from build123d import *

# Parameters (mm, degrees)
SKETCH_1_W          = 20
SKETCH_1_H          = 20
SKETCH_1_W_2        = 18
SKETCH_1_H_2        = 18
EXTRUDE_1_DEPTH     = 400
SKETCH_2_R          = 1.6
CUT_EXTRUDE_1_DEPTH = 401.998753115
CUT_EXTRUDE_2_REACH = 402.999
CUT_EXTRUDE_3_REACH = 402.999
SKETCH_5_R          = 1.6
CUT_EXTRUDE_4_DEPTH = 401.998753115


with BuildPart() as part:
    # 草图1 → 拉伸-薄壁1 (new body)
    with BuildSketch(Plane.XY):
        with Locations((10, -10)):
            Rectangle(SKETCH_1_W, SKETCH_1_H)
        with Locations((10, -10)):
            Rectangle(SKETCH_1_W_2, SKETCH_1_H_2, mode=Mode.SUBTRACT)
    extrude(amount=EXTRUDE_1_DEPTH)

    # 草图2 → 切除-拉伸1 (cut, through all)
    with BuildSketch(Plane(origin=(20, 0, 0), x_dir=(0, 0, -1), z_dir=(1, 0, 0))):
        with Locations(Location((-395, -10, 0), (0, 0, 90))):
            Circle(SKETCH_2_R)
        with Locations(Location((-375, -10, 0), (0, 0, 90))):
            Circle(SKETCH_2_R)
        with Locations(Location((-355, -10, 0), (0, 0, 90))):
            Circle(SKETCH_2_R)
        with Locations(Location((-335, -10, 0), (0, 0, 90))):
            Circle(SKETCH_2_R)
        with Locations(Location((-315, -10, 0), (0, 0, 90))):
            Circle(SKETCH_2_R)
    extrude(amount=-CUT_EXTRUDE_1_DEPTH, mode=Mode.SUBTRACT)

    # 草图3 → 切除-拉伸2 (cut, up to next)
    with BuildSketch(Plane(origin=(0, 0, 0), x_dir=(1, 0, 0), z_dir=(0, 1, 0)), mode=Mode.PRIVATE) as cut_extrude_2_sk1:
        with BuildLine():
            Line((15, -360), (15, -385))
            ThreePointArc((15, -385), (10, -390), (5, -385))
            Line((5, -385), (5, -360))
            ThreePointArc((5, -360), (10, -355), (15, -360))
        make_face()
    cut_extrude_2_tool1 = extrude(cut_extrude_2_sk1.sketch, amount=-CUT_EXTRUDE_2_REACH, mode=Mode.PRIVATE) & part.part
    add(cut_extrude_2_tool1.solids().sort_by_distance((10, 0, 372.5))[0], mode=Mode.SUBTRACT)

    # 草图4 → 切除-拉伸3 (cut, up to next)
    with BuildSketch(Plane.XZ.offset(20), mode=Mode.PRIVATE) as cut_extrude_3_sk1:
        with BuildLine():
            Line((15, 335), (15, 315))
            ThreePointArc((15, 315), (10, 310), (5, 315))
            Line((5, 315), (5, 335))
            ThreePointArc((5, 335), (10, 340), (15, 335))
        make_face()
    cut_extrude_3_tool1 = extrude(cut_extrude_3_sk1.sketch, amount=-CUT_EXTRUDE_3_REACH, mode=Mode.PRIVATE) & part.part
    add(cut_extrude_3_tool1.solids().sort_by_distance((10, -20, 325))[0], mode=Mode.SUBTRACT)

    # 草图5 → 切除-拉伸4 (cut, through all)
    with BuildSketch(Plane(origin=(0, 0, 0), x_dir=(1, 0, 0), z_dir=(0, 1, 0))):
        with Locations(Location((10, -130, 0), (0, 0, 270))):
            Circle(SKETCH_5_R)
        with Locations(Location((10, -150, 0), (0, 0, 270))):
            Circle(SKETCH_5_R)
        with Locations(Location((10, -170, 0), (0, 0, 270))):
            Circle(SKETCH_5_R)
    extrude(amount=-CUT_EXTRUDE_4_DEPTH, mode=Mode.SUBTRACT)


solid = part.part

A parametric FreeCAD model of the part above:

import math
import FreeCAD as App
import Part
import Sketcher


def add_polygon(sketch, points):
    """Adds a closed chain of lines whose ends are joined by coincident constraints."""
    first, n = sketch.GeometryCount, len(points)
    for a, b in zip(points, points[1:] + points[:1]):
        sketch.addGeometry(Part.LineSegment(App.Vector(*a, 0), App.Vector(*b, 0)), False)
    for i in range(n):
        sketch.addConstraint(Sketcher.Constraint("Coincident", first + i, 2, first + (i + 1) % n, 1))

doc = App.newDocument("Part")
params = doc.addObject("Spreadsheet::Sheet", "Params")
for row, (alias, value) in enumerate([
    ("sketch1_width", "20 mm"),
    ("sketch1_width2", "18 mm"),
    ("pad1_length", "400 mm"),
    ("sketch2_diameter", "3.2 mm"),
    ("sketch3_radius", "5 mm"),
    ("sketch3_height", "25 mm"),
    ("sketch4_radius", "5 mm"),
    ("sketch4_height", "20 mm"),
    ("sketch5_diameter", "3.2 mm"),
], start=1):
    params.set(f"A{row}", alias)
    params.set(f"B{row}", "=" + value)
    params.setAlias(f"B{row}", alias)

body = doc.addObject("PartDesign::Body", "Body")

# Sketch on XY plane
sketch1 = body.newObject("Sketcher::SketchObject", "Sketch")
sketch1.AttachmentSupport = (doc.getObject("XY_Plane"), [""])
sketch1.MapMode = "FlatFace"
add_polygon(sketch1, [(0, 0), (0, -20), (20, -20), (20, 0)])  # lines 0-3
add_polygon(sketch1, [(19, -19), (1, -19), (1, -1), (19, -1)])  # lines 4-7
sketch1.addConstraint([
    Sketcher.Constraint("Vertical", 0),
    Sketcher.Constraint("Horizontal", 1),
    Sketcher.Constraint("Vertical", 2),
    Sketcher.Constraint("Horizontal", 3),
    Sketcher.Constraint("Horizontal", 4),
    Sketcher.Constraint("Vertical", 5),
    Sketcher.Constraint("Horizontal", 6),
    Sketcher.Constraint("Vertical", 7),
    Sketcher.Constraint("Coincident", 3, 2, -1, 1),
    Sketcher.Constraint("Equal", 3, 0),
    Sketcher.Constraint("Equal", 6, 5),
    Sketcher.Constraint("DistanceX", 1, 1, 1, 2, 20.0),
    Sketcher.Constraint("DistanceX", 4, 2, 4, 1, 18.0),
    Sketcher.Constraint("DistanceX", -1, 1, 4, 2, 1.0),
    Sketcher.Constraint("DistanceY", 4, 2, -1, 1, 19.0),
])
sketch1.setExpression("Constraints[19]", "Params.sketch1_width")
sketch1.setExpression("Constraints[20]", "Params.sketch1_width2")
pad1 = body.newObject("PartDesign::Pad", "Pad")
pad1.Profile = sketch1
pad1.setExpression("Length", "Params.pad1_length")

# Sketch on YZ plane
sketch2 = body.newObject("Sketcher::SketchObject", "Sketch001")
sketch2.AttachmentSupport = (doc.getObject("YZ_Plane"), [""])
sketch2.MapMode = "FlatFace"
sketch2.AttachmentOffset = App.Placement(App.Vector(0, 0, 20), App.Rotation())
sketch2.addGeometry([
    Part.Circle(App.Vector(-10, 395, 0), App.Vector(0, 0, 1), 1.6),  # 0
    Part.Circle(App.Vector(-10, 375, 0), App.Vector(0, 0, 1), 1.6),  # 1
    Part.Circle(App.Vector(-10, 355, 0), App.Vector(0, 0, 1), 1.6),  # 2
    Part.Circle(App.Vector(-10, 335, 0), App.Vector(0, 0, 1), 1.6),  # 3
    Part.Circle(App.Vector(-10, 315, 0), App.Vector(0, 0, 1), 1.6),  # 4
], False)
sketch2.addConstraint([
    Sketcher.Constraint("Equal", 0, 1),
    Sketcher.Constraint("Equal", 1, 2),
    Sketcher.Constraint("Equal", 2, 3),
    Sketcher.Constraint("Equal", 3, 4),
    Sketcher.Constraint("Vertical", 0, 3, 1, 3),
    Sketcher.Constraint("Vertical", 1, 3, 2, 3),
    Sketcher.Constraint("Vertical", 2, 3, 3, 3),
    Sketcher.Constraint("Vertical", 3, 3, 4, 3),
    Sketcher.Constraint("Diameter", 0, 3.2),
    Sketcher.Constraint("DistanceX", 0, 3, -1, 1, 10.0),
    Sketcher.Constraint("DistanceY", -1, 1, 0, 3, 395.0),
    Sketcher.Constraint("DistanceY", -1, 1, 1, 3, 375.0),
    Sketcher.Constraint("DistanceY", -1, 1, 2, 3, 355.0),
    Sketcher.Constraint("DistanceY", -1, 1, 3, 3, 335.0),
    Sketcher.Constraint("DistanceY", -1, 1, 4, 3, 315.0),
])
sketch2.setExpression("Constraints[8]", "Params.sketch2_diameter")
pocket1 = body.newObject("PartDesign::Pocket", "Pocket")
pocket1.Profile = sketch2
pocket1.Type = "ThroughAll"

# Sketch on XZ plane
sketch3 = body.newObject("Sketcher::SketchObject", "Sketch002")
sketch3.AttachmentSupport = (doc.getObject("XZ_Plane"), [""])
sketch3.MapMode = "FlatFace"
sketch3.addGeometry([
    Part.LineSegment(App.Vector(15, 385, 0), App.Vector(15, 360, 0)),
    Part.ArcOfCircle(Part.Circle(App.Vector(10, 360, 0), App.Vector(0, 0, 1), 5), math.radians(180), math.radians(360)),
    Part.LineSegment(App.Vector(5, 360, 0), App.Vector(5, 385, 0)),
    Part.ArcOfCircle(Part.Circle(App.Vector(10, 385, 0), App.Vector(0, 0, 1), 5), math.radians(0), math.radians(180)),
], False)
sketch3.addConstraint([
    Sketcher.Constraint("Tangent", 0, 2, 1, 2),
    Sketcher.Constraint("Tangent", 1, 1, 2, 1),
    Sketcher.Constraint("Tangent", 2, 2, 3, 2),
    Sketcher.Constraint("Tangent", 3, 1, 0, 1),
    Sketcher.Constraint("Vertical", 0),
    Sketcher.Constraint("Vertical", 2),
    Sketcher.Constraint("Radius", 1, 5.0),
    Sketcher.Constraint("DistanceY", 0, 2, 0, 1, 25.0),
    Sketcher.Constraint("DistanceX", -1, 1, 1, 3, 10.0),
    Sketcher.Constraint("DistanceY", -1, 1, 1, 3, 360.0),
])
sketch3.setExpression("Constraints[6]", "Params.sketch3_radius")
sketch3.setExpression("Constraints[7]", "Params.sketch3_height")
pocket2 = body.newObject("PartDesign::Pocket", "Pocket001")
pocket2.Profile = sketch3
pocket2.Type = "UpToFirst"
pocket2.Reversed = True

# Sketch on XZ plane
sketch4 = body.newObject("Sketcher::SketchObject", "Sketch003")
sketch4.AttachmentSupport = (doc.getObject("XZ_Plane"), [""])
sketch4.MapMode = "FlatFace"
sketch4.AttachmentOffset = App.Placement(App.Vector(0, 0, 20), App.Rotation())
sketch4.addGeometry([
    Part.LineSegment(App.Vector(15, 315, 0), App.Vector(15, 335, 0)),
    Part.ArcOfCircle(Part.Circle(App.Vector(10, 335, 0), App.Vector(0, 0, 1), 5), math.radians(0), math.radians(180)),
    Part.LineSegment(App.Vector(5, 335, 0), App.Vector(5, 315, 0)),
    Part.ArcOfCircle(Part.Circle(App.Vector(10, 315, 0), App.Vector(0, 0, 1), 5), math.radians(180), math.radians(360)),
], False)
sketch4.addConstraint([
    Sketcher.Constraint("Tangent", 0, 2, 1, 1),
    Sketcher.Constraint("Tangent", 1, 2, 2, 1),
    Sketcher.Constraint("Tangent", 2, 2, 3, 1),
    Sketcher.Constraint("Tangent", 3, 2, 0, 1),
    Sketcher.Constraint("Vertical", 0),
    Sketcher.Constraint("Vertical", 2),
    Sketcher.Constraint("Radius", 1, 5.0),
    Sketcher.Constraint("DistanceY", 0, 1, 0, 2, 20.0),
    Sketcher.Constraint("DistanceX", -1, 1, 1, 3, 10.0),
    Sketcher.Constraint("DistanceY", -1, 1, 1, 3, 335.0),
])
sketch4.setExpression("Constraints[6]", "Params.sketch4_radius")
sketch4.setExpression("Constraints[7]", "Params.sketch4_height")
pocket3 = body.newObject("PartDesign::Pocket", "Pocket002")
pocket3.Profile = sketch4
pocket3.Type = "UpToFirst"

# Sketch on XZ plane
sketch5 = body.newObject("Sketcher::SketchObject", "Sketch004")
sketch5.AttachmentSupport = (doc.getObject("XZ_Plane"), [""])
sketch5.MapMode = "FlatFace"
sketch5.addGeometry([
    Part.Circle(App.Vector(10, 130, 0), App.Vector(0, 0, 1), 1.6),
    Part.Circle(App.Vector(10, 150, 0), App.Vector(0, 0, 1), 1.6),
    Part.Circle(App.Vector(10, 170, 0), App.Vector(0, 0, 1), 1.6),
], False)
sketch5.addConstraint([
    Sketcher.Constraint("Equal", 0, 1),
    Sketcher.Constraint("Equal", 1, 2),
    Sketcher.Constraint("Vertical", 0, 3, 1, 3),
    Sketcher.Constraint("Vertical", 1, 3, 2, 3),
    Sketcher.Constraint("Diameter", 0, 3.2),
    Sketcher.Constraint("DistanceX", -1, 1, 0, 3, 10.0),
    Sketcher.Constraint("DistanceY", -1, 1, 0, 3, 130.0),
    Sketcher.Constraint("DistanceY", -1, 1, 1, 3, 150.0),
    Sketcher.Constraint("DistanceY", -1, 1, 2, 3, 170.0),
])
sketch5.setExpression("Constraints[4]", "Params.sketch5_diameter")
pocket4 = body.newObject("PartDesign::Pocket", "Pocket003")
pocket4.Profile = sketch5
pocket4.Type = "ThroughAll"
pocket4.Reversed = True

doc.recompute()
